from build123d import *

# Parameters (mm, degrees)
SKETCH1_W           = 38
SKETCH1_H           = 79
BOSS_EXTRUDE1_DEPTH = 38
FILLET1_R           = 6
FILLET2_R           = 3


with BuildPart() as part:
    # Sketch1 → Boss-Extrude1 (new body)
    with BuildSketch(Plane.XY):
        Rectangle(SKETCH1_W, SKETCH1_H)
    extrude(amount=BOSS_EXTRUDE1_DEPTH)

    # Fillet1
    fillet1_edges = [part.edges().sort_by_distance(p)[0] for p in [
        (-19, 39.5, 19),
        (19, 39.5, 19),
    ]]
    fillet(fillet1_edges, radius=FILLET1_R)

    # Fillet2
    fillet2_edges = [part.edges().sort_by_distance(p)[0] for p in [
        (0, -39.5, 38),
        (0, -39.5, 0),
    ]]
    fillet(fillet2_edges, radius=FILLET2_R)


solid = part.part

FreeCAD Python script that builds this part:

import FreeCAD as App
import Part
import Sketcher

V = App.Vector


def edges_at(feature, points):
    """Names of the edges that pass closest to the given points."""
    edges = feature.Shape.Edges
    near = lambda p: min(range(len(edges)), key=lambda i: edges[i].distToShape(Part.Vertex(*p))[0])
    return sorted({f"Edge{near(p) + 1}" for p in points})


def add_polygon(sketch, points):
    """Adds a closed chain of lines whose ends are joined by coincident constraints."""
    first, n = sketch.GeometryCount, len(points)
    for a, b in zip(points, points[1:] + points[:1]):
        sketch.addGeometry(Part.LineSegment(App.Vector(*a, 0), App.Vector(*b, 0)), False)
    for i in range(n):
        sketch.addConstraint(Sketcher.Constraint("Coincident", first + i, 2, first + (i + 1) % n, 1))

doc = App.newDocument("Part")
body = doc.addObject("PartDesign::Body", "Body")

# Sketch on XY plane
sketch1 = doc.addObject("Sketcher::SketchObject", "Sketch")
body.addObject(sketch1)
sketch1.AttachmentSupport = (doc.XY_Plane, [""])
sketch1.MapMode = "FlatFace"
add_polygon(sketch1, [(-19, 40), (-19, -40), (19, -40), (19, 40)])  # lines 0-3
sketch1.addConstraint([
    Sketcher.Constraint("Vertical", 0),
    Sketcher.Constraint("Horizontal", 1),
    Sketcher.Constraint("Vertical", 2),
    Sketcher.Constraint("Horizontal", 3),
    Sketcher.Constraint("Symmetric", 0, 2, 2, 2, -1, 1),
    Sketcher.Constraint("DistanceX", 1, 1, 1, 2, 38.0),
    Sketcher.Constraint("DistanceY", 0, 2, 0, 1, 79.0),
])
pad1 = doc.addObject("PartDesign::Pad", "Pad")
body.addObject(pad1)
pad1.Profile = sketch1
pad1.Length = 38
doc.recompute()

fillet = doc.addObject("PartDesign::Fillet", "Fillet")
body.addObject(fillet)
fillet.Base = (pad1, edges_at(pad1, [(-19, 39.5, 19), (19, 39.5, 19)]))
fillet.Radius = 6
doc.recompute()

fillet2 = doc.addObject("PartDesign::Fillet", "Fillet001")
body.addObject(fillet2)
fillet2.Base = (fillet, edges_at(fillet, [(0, -39.5, 38), (0, -39.5, 0)]))
fillet2.Radius = 3

doc.recompute()
